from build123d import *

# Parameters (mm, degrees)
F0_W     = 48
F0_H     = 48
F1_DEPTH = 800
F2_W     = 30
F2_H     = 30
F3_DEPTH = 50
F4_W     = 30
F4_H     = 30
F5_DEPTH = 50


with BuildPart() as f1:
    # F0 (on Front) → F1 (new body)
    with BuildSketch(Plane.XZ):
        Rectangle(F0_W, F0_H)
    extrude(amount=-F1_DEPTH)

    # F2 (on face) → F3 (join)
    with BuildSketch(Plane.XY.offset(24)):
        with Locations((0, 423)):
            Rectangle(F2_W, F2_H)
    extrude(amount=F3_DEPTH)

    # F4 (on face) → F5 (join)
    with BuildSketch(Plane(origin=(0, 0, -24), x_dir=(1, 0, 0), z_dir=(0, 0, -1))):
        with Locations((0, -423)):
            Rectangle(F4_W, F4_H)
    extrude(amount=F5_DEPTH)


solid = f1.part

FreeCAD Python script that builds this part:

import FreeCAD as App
import Part
import Sketcher
from FreeCAD import Vector
Q = App.Units.Quantity

doc = App.newDocument("Part")
params = doc.addObject("Spreadsheet::Sheet", "Params")
for row, (alias, value) in enumerate([
    ("sketch1_width", "48 mm"),
    ("pad1_length", "800 mm"),
    ("sketch2_width", "30 mm"),
    ("pad2_length", "50 mm"),
    ("sketch3_width", "30 mm"),
    ("pad3_length", "50 mm"),
], start=1):
    params.set(f"A{row}", alias)
    params.set(f"B{row}", "=" + value)
    params.setAlias(f"B{row}", alias)

body = doc.addObject("PartDesign::Body", "Body")

# Sketch on XZ plane
sketch1 = body.newObject("Sketcher::SketchObject", "Sketch")
sketch1.AttachmentSupport = (doc.getObject("XZ_Plane"), [""])
sketch1.MapMode = "FlatFace"
sketch1.addGeometry([
    Part.LineSegment(Vector(-24, 24, 0), Vector(-24, -24, 0)),
    Part.LineSegment(Vector(-24, -24, 0), Vector(24, -24, 0)),
    Part.LineSegment(Vector(24, -24, 0), Vector(24, 24, 0)),
    Part.LineSegment(Vector(24, 24, 0), Vector(-24, 24, 0)),
], False)
sketch1.addConstraint([
    Sketcher.Constraint("Coincident", 0, 2, 1, 1),
    Sketcher.Constraint("Coincident", 1, 2, 2, 1),
    Sketcher.Constraint("Coincident", 2, 2, 3, 1),
    Sketcher.Constraint("Coincident", 3, 2, 0, 1),
    Sketcher.Constraint("Vertical", 0),
    Sketcher.Constraint("Horizontal", 1),
    Sketcher.Constraint("Vertical", 2),
    Sketcher.Constraint("Horizontal", 3),
    Sketcher.Constraint("Symmetric", 0, 2, 2, 2, -1, 1),
    Sketcher.Constraint("Equal", 3, 0),
    Sketcher.Constraint("DistanceX", 1, 1, 1, 2, Q("48 mm")),
])
sketch1.setExpression("Constraints[10]", "Params.sketch1_width")
pad1 = body.newObject("PartDesign::Pad", "Pad")
pad1.Profile = sketch1
pad1.setExpression("Length", "Params.pad1_length")
pad1.Reversed = True

# Sketch on XY plane
sketch2 = body.newObject("Sketcher::SketchObject", "Sketch001")
sketch2.AttachmentSupport = (doc.getObject("XY_Plane"), [""])
sketch2.MapMode = "FlatFace"
sketch2.AttachmentOffset = App.Placement(Vector(0, 0, 24), App.Rotation())
sketch2.addGeometry([
    Part.LineSegment(Vector(-15, 438, 0), Vector(-15, 408, 0)),
    Part.LineSegment(Vector(-15, 408, 0), Vector(15, 408, 0)),
    Part.LineSegment(Vector(15, 408, 0), Vector(15, 438, 0)),
    Part.LineSegment(Vector(15, 438, 0), Vector(-15, 438, 0)),
], False)
sketch2.addConstraint([
    Sketcher.Constraint("Coincident", 0, 2, 1, 1),
    Sketcher.Constraint("Coincident", 1, 2, 2, 1),
    Sketcher.Constraint("Coincident", 2, 2, 3, 1),
    Sketcher.Constraint("Coincident", 3, 2, 0, 1),
    Sketcher.Constraint("Vertical", 0),
    Sketcher.Constraint("Horizontal", 1),
    Sketcher.Constraint("Vertical", 2),
    Sketcher.Constraint("Horizontal", 3),
    Sketcher.Constraint("Equal", 3, 0),
    Sketcher.Constraint("DistanceX", 1, 1, 1, 2, Q("30 mm")),
    Sketcher.Constraint("DistanceX", 0, 2, -1, 1, Q("15 mm")),
    Sketcher.Constraint("DistanceY", -1, 1, 0, 2, Q("408 mm")),
])
sketch2.setExpression("Constraints[9]", "Params.sketch2_width")
pad2 = body.newObject("PartDesign::Pad", "Pad001")
pad2.Profile = sketch2
pad2.setExpression("Length", "Params.pad2_length")

# Sketch on XY plane
sketch3 = body.newObject("Sketcher::SketchObject", "Sketch002")
sketch3.AttachmentSupport = (doc.getObject("XY_Plane"), [""])
sketch3.MapMode = "FlatFace"
sketch3.AttachmentOffset = App.Placement(Vector(0, 0, -24), App.Rotation())
sketch3.addGeometry([
    Part.LineSegment(Vector(-15, 408, 0), Vector(-15, 438, 0)),
    Part.LineSegment(Vector(-15, 438, 0), Vector(15, 438, 0)),
    Part.LineSegment(Vector(15, 438, 0), Vector(15, 408, 0)),
    Part.LineSegment(Vector(15, 408, 0), Vector(-15, 408, 0)),
], False)
sketch3.addConstraint([
    Sketcher.Constraint("Coincident", 0, 2, 1, 1),
    Sketcher.Constraint("Coincident", 1, 2, 2, 1),
    Sketcher.Constraint("Coincident", 2, 2, 3, 1),
    Sketcher.Constraint("Coincident", 3, 2, 0, 1),
    Sketcher.Constraint("Vertical", 0),
    Sketcher.Constraint("Horizontal", 1),
    Sketcher.Constraint("Vertical", 2),
    Sketcher.Constraint("Horizontal", 3),
    Sketcher.Constraint("Equal", 3, 0),
    Sketcher.Constraint("DistanceX", 1, 1, 1, 2, Q("30 mm")),
    Sketcher.Constraint("DistanceX", 0, 2, -1, 1, Q("15 mm")),
    Sketcher.Constraint("DistanceY", -1, 1, 0, 2, Q("438 mm")),
])
sketch3.setExpression("Constraints[9]", "Params.sketch3_width")
pad3 = body.newObject("PartDesign::Pad", "Pad002")
pad3.Profile = sketch3
pad3.setExpression("Length", "Params.pad3_length")
pad3.Reversed = True

doc.recompute()
